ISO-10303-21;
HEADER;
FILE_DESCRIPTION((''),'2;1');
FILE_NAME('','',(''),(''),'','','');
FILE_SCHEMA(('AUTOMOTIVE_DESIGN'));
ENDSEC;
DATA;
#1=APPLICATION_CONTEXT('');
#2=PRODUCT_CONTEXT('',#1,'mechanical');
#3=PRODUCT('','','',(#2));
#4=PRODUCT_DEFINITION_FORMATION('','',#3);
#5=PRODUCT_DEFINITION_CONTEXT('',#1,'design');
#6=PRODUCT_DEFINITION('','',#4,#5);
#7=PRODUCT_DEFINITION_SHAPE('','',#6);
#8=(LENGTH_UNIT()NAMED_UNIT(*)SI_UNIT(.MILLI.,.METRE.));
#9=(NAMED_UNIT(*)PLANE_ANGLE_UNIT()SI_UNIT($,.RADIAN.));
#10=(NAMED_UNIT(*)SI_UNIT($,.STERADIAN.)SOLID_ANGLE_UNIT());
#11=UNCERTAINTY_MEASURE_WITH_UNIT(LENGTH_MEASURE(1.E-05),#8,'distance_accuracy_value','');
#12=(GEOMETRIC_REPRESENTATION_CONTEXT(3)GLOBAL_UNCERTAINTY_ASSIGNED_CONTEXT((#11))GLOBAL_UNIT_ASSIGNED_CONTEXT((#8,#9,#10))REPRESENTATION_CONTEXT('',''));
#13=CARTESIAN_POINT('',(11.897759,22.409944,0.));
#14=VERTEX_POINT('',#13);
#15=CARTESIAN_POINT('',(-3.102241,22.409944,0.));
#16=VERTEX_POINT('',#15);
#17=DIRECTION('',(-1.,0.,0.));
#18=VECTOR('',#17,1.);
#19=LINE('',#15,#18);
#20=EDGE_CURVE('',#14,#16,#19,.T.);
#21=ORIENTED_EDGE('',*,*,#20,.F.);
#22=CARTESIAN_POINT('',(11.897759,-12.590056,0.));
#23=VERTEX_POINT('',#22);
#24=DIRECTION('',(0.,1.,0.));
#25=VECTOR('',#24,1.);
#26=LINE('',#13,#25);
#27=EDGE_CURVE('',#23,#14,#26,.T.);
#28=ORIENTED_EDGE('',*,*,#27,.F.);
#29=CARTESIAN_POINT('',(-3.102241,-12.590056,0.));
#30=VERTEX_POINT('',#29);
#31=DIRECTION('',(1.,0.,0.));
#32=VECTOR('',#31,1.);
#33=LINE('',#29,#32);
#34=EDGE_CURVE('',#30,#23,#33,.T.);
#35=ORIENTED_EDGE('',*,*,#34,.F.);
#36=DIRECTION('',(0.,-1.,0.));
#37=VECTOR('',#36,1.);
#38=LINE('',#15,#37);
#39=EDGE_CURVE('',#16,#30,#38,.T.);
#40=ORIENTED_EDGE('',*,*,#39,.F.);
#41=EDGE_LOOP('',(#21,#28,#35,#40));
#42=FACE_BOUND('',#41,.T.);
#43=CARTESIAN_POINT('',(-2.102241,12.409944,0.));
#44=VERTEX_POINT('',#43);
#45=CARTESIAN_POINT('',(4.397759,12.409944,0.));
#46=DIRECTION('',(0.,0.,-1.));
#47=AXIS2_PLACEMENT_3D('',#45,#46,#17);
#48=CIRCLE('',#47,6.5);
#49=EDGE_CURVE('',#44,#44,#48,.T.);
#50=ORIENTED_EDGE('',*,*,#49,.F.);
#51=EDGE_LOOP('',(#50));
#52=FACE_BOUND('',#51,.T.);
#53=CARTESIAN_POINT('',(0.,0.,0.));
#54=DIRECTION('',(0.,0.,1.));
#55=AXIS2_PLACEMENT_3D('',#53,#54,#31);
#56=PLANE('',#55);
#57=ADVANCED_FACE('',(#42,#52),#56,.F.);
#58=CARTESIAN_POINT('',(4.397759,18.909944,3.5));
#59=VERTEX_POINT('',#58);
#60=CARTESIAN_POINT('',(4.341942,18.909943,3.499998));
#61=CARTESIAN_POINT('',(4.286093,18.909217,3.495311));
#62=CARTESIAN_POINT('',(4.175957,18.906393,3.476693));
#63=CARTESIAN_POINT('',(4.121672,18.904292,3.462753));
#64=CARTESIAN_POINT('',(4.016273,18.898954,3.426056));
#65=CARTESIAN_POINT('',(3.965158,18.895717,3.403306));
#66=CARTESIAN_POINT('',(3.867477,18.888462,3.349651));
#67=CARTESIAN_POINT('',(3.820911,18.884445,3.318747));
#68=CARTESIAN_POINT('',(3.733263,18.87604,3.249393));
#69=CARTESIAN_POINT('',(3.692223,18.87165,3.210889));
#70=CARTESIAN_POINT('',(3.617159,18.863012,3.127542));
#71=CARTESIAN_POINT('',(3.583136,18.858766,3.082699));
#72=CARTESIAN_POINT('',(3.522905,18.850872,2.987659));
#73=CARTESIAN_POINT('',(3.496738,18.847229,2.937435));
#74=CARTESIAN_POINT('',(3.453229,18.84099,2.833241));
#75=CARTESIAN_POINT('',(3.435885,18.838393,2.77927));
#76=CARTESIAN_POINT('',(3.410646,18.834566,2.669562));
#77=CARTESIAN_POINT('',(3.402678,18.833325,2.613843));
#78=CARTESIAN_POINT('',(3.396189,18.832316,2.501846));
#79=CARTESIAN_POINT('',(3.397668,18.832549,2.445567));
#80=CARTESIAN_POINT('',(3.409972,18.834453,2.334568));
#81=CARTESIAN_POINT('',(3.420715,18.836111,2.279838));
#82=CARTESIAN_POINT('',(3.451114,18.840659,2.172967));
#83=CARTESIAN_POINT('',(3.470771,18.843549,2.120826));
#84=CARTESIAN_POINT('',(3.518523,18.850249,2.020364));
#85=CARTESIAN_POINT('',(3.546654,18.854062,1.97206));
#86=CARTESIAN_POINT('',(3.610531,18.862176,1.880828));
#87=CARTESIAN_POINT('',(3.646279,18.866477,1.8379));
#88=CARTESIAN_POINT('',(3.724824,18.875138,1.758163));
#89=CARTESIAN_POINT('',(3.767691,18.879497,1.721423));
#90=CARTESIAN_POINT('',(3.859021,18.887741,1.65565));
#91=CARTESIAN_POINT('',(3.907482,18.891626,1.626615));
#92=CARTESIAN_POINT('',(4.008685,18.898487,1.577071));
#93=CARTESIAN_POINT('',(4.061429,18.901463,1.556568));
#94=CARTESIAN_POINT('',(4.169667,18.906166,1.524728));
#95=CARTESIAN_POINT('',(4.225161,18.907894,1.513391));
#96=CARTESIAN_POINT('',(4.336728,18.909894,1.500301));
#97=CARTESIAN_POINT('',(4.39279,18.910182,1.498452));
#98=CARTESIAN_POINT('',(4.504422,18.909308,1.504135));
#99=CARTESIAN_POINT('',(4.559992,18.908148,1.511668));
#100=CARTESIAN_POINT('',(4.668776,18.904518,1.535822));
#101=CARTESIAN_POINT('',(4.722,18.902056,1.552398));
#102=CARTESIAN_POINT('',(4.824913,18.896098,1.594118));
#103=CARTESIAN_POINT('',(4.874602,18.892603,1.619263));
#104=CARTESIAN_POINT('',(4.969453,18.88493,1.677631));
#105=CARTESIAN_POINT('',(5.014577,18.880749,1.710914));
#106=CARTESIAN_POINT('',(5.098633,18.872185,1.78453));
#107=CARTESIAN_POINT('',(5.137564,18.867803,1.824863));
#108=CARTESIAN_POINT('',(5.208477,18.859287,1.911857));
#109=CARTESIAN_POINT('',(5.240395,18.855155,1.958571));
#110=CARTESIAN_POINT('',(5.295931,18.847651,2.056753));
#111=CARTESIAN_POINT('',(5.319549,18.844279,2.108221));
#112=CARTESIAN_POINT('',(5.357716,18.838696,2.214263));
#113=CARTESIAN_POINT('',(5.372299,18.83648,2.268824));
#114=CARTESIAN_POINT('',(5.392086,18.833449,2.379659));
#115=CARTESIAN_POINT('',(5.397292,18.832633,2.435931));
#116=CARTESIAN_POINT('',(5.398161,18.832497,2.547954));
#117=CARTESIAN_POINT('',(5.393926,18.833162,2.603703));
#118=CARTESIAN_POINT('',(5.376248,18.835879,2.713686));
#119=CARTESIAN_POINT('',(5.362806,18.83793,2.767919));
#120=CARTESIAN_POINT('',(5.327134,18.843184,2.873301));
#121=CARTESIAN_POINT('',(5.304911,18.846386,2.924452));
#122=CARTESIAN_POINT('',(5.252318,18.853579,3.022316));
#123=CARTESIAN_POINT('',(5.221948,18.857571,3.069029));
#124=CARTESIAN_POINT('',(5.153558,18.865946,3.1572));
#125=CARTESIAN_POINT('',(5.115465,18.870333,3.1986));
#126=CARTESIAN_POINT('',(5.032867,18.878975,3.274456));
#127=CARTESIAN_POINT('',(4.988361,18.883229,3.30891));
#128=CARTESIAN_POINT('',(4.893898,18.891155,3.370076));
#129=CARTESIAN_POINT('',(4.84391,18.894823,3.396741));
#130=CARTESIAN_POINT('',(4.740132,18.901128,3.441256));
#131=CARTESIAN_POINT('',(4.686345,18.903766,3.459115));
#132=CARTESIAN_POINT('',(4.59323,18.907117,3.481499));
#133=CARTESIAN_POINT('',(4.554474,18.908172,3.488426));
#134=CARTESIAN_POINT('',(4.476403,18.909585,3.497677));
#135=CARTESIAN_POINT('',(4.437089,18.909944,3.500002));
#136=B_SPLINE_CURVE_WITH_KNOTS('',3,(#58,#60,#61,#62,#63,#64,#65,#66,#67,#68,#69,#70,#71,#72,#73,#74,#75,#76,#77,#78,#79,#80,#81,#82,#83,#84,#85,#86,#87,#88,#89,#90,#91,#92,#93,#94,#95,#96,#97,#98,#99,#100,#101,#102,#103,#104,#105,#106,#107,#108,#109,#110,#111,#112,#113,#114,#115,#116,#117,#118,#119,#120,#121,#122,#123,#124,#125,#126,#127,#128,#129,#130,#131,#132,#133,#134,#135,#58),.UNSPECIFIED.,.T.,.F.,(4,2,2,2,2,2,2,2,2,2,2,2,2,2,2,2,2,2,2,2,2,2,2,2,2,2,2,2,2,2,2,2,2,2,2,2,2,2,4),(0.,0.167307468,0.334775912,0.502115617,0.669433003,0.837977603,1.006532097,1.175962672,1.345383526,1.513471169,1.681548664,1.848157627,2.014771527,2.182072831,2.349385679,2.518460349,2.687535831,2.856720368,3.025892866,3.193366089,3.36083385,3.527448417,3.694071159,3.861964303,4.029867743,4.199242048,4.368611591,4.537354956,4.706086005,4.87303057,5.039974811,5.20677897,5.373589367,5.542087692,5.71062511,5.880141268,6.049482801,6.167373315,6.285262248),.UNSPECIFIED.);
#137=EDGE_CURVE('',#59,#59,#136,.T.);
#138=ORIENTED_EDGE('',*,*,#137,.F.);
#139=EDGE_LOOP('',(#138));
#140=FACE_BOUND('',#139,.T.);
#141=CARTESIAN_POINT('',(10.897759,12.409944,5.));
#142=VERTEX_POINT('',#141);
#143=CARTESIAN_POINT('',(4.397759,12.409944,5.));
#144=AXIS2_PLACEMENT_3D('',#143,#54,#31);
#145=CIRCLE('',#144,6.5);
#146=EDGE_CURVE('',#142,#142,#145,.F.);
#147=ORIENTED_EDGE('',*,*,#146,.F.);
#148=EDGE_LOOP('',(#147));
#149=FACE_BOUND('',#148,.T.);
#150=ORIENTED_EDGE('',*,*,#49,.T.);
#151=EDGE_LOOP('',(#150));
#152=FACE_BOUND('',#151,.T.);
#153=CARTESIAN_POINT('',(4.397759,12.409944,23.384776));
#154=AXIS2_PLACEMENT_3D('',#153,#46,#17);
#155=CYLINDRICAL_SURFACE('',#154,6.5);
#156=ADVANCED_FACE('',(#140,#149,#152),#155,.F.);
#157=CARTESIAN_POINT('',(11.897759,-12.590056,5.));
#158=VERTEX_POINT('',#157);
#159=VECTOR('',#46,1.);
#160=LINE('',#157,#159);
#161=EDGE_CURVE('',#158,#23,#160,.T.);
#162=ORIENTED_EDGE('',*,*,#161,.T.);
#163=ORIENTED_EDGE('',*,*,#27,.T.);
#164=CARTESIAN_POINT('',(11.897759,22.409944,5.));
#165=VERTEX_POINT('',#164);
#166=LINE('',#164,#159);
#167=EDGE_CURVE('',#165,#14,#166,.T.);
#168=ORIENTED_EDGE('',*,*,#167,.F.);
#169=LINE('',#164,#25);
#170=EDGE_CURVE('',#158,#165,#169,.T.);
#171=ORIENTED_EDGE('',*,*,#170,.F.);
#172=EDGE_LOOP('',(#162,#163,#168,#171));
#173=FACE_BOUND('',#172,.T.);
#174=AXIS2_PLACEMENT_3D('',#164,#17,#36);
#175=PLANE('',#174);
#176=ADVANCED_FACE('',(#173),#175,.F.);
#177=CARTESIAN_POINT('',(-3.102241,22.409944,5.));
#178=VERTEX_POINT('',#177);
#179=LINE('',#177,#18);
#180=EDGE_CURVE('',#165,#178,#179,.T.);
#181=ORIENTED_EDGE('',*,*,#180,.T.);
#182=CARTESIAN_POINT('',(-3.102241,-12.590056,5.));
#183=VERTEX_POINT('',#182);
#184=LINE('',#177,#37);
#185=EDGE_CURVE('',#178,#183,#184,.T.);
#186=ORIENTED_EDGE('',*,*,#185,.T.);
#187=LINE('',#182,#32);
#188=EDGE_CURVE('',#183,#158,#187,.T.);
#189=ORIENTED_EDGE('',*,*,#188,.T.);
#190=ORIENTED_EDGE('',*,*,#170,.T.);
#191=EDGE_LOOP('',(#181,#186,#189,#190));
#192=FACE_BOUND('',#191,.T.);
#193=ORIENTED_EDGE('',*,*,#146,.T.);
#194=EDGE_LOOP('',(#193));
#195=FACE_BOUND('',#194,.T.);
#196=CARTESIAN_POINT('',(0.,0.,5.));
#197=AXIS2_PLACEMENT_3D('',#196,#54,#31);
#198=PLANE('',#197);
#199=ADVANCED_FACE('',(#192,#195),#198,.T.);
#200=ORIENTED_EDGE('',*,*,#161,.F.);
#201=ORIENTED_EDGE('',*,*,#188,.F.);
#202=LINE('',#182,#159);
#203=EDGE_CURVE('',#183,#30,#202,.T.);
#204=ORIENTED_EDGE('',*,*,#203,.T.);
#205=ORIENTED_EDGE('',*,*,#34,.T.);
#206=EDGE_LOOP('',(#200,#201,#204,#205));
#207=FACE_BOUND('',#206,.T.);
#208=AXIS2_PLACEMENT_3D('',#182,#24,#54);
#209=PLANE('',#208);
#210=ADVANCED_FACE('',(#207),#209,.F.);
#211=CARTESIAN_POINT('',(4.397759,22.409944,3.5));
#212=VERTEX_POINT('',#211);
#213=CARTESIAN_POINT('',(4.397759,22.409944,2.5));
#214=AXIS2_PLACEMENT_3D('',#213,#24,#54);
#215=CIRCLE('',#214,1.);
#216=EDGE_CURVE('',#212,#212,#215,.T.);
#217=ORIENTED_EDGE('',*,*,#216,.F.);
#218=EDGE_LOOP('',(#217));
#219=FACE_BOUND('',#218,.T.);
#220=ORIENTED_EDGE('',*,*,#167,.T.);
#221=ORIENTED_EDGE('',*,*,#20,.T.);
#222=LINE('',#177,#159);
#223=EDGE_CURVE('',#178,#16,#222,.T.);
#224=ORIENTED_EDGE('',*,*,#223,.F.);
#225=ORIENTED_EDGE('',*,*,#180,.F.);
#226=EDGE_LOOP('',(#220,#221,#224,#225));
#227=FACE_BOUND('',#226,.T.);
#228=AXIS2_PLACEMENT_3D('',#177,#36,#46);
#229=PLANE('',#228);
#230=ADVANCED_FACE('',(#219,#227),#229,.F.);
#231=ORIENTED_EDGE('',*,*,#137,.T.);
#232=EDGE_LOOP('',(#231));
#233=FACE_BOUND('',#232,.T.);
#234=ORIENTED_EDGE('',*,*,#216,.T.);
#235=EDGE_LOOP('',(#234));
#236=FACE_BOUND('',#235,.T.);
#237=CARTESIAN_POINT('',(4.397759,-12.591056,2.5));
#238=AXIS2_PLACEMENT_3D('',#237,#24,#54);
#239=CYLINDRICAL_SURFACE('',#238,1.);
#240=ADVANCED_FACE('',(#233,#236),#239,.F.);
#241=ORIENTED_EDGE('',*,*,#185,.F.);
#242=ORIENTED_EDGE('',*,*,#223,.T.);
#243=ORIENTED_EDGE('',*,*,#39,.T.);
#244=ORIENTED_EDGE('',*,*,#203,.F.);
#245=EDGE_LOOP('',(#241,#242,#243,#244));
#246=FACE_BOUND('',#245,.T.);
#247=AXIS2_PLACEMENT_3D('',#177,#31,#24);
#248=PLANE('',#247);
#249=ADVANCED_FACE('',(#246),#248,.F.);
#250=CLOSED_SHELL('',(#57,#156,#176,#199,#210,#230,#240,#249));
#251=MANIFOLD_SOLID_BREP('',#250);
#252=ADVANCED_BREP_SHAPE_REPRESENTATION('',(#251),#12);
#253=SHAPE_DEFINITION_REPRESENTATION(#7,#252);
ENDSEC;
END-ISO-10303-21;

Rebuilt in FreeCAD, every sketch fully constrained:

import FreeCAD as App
import Part
import Sketcher

V = App.Vector

doc = App.newDocument("Part")
body = doc.addObject("PartDesign::Body", "Body")

# Sketch on XY plane
sketch1 = body.newObject("Sketcher::SketchObject", "Sketch")
sketch1.AttachmentSupport = (doc.getObject("XY_Plane"), [""])
sketch1.MapMode = "FlatFace"
sketch1.addGeometry([
    Part.LineSegment(V(-3.102241, 22.409944, 0), V(-3.102241, -12.590056, 0)),
    Part.LineSegment(V(-3.102241, -12.590056, 0), V(11.897759, -12.590056, 0)),
    Part.LineSegment(V(11.897759, -12.590056, 0), V(11.897759, 22.409944, 0)),
    Part.LineSegment(V(11.897759, 22.409944, 0), V(-3.102241, 22.409944, 0)),
], False)
sketch1.addConstraint([
    Sketcher.Constraint("Coincident", 0, 2, 1, 1),
    Sketcher.Constraint("Coincident", 1, 2, 2, 1),
    Sketcher.Constraint("Coincident", 2, 2, 3, 1),
    Sketcher.Constraint("Coincident", 3, 2, 0, 1),
    Sketcher.Constraint("Vertical", 0),
    Sketcher.Constraint("Horizontal", 1),
    Sketcher.Constraint("Vertical", 2),
    Sketcher.Constraint("Horizontal", 3),
    Sketcher.Constraint("DistanceX", 1, 1, 1, 2, 15.0),
    Sketcher.Constraint("DistanceY", 0, 2, 0, 1, 35.0),
    Sketcher.Constraint("DistanceX", 0, 2, -1, 1, 3.102241),
    Sketcher.Constraint("DistanceY", 0, 2, -1, 1, 12.590056),
])
pad1 = body.newObject("PartDesign::Pad", "Pad")
pad1.Profile = sketch1
pad1.Length = 5

# Sketch on XY plane
sketch2 = body.newObject("Sketcher::SketchObject", "Sketch001")
sketch2.AttachmentSupport = (doc.getObject("XY_Plane"), [""])
sketch2.MapMode = "FlatFace"
sketch2.addGeometry(Part.Circle(V(4.397759, 12.409944, 0), V(0, 0, 1), 6.5), False)
sketch2.addConstraint([
    Sketcher.Constraint("Diameter", 0, 13.0),
    Sketcher.Constraint("DistanceX", -1, 1, 0, 3, 4.397759),
    Sketcher.Constraint("DistanceY", -1, 1, 0, 3, 12.409944),
])
pocket1 = body.newObject("PartDesign::Pocket", "Pocket")
pocket1.Profile = sketch2
pocket1.Length = 5
pocket1.Reversed = True

# Sketch on XZ plane
sketch3 = body.newObject("Sketcher::SketchObject", "Sketch002")
sketch3.AttachmentSupport = (doc.getObject("XZ_Plane"), [""])
sketch3.MapMode = "FlatFace"
sketch3.AttachmentOffset = App.Placement(V(0, 0, -22.409944), App.Rotation())
sketch3.addGeometry(Part.Circle(V(4.397759, 2.5, 0), V(0, 0, 1), 1), False)
sketch3.addConstraint([
    Sketcher.Constraint("Diameter", 0, 2.0),
    Sketcher.Constraint("DistanceY", -1, 1, 0, 3, 2.5),
    Sketcher.Constraint("DistanceX", -1, 1, 0, 3, 4.397759),
])
pocket2 = body.newObject("PartDesign::Pocket", "Pocket001")
pocket2.Profile = sketch3
pocket2.Type = "UpToFirst"
pocket2.Reversed = True

doc.recompute()
